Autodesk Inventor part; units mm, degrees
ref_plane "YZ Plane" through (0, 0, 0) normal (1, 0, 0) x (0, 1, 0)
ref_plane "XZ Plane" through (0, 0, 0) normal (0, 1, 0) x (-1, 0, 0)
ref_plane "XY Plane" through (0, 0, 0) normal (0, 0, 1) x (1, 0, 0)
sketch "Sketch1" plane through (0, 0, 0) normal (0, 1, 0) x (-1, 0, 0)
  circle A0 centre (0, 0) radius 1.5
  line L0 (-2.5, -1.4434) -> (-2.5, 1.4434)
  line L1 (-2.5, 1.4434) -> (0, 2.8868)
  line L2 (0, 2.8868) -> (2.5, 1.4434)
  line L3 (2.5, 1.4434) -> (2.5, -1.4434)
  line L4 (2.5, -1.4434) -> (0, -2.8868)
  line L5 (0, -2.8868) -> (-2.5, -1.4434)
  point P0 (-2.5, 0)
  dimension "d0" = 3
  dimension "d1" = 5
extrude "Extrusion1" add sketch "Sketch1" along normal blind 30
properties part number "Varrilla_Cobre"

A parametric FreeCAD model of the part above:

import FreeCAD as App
import Part
import Sketcher

V = App.Vector
Q = App.Units.Quantity


def add_polygon(sketch, points):
    """Adds a closed chain of lines whose ends are joined by coincident constraints."""
    first, n = sketch.GeometryCount, len(points)
    for a, b in zip(points, points[1:] + points[:1]):
        sketch.addGeometry(Part.LineSegment(App.Vector(*a, 0), App.Vector(*b, 0)), False)
    for i in range(n):
        sketch.addConstraint(Sketcher.Constraint("Coincident", first + i, 2, first + (i + 1) % n, 1))

doc = App.newDocument("Part")
params = doc.addObject("Spreadsheet::Sheet", "Params")
for row, (alias, value) in enumerate([
    ("sketch1_diameter", "3 mm"),
    ("pad1_length", "30 mm"),
], start=1):
    params.set(f"A{row}", alias)
    params.set(f"B{row}", "=" + value)
    params.setAlias(f"B{row}", alias)

body = doc.addObject("PartDesign::Body", "Body")

sketch1 = body.newObject("Sketcher::SketchObject", "Sketch")
sketch1.AttachmentSupport = (doc.getObject("XZ_Plane"), [""])
sketch1.MapMode = "FlatFace"
add_polygon(sketch1, [(2.5, 1.4), (2.5, -1.4), (0, -2.9), (-2.5, -1.4), (-2.5, 1.4), (0, 2.9)])
sketch1.addGeometry(Part.Circle(V(0, 0, 0), V(0, 0, 1), 1.5), False)
sketch1.addConstraint([
    Sketcher.Constraint("Vertical", 0),
    Sketcher.Constraint("Vertical", 3),
    Sketcher.Constraint("Coincident", 6, 3, -1, 1),
    Sketcher.Constraint("Symmetric", 0, 2, 3, 2, -1, 1),
    Sketcher.Constraint("Symmetric", 1, 2, 4, 2, -1, 1),
    Sketcher.Constraint("PointOnObject", 1, 2, -2),
    Sketcher.Constraint("Parallel", 2, 5),
    Sketcher.Constraint("Horizontal", 0, 2, 2, 2),
    Sketcher.Constraint("Diameter", 6, 3.0),
    Sketcher.Constraint("DistanceX", 2, 2, 0, 2, 5.0),
    Sketcher.Constraint("Angle", 1, Q("-149.9996 deg")),
    Sketcher.Constraint("DistanceY", 0, 2, 0, 1, 2.8868),
])
sketch1.setExpression("Constraints[14]", "Params.sketch1_diameter")
pad1 = body.newObject("PartDesign::Pad", "Pad")
pad1.Profile = sketch1
pad1.setExpression("Length", "Params.pad1_length")
pad1.Reversed = True

doc.recompute()
